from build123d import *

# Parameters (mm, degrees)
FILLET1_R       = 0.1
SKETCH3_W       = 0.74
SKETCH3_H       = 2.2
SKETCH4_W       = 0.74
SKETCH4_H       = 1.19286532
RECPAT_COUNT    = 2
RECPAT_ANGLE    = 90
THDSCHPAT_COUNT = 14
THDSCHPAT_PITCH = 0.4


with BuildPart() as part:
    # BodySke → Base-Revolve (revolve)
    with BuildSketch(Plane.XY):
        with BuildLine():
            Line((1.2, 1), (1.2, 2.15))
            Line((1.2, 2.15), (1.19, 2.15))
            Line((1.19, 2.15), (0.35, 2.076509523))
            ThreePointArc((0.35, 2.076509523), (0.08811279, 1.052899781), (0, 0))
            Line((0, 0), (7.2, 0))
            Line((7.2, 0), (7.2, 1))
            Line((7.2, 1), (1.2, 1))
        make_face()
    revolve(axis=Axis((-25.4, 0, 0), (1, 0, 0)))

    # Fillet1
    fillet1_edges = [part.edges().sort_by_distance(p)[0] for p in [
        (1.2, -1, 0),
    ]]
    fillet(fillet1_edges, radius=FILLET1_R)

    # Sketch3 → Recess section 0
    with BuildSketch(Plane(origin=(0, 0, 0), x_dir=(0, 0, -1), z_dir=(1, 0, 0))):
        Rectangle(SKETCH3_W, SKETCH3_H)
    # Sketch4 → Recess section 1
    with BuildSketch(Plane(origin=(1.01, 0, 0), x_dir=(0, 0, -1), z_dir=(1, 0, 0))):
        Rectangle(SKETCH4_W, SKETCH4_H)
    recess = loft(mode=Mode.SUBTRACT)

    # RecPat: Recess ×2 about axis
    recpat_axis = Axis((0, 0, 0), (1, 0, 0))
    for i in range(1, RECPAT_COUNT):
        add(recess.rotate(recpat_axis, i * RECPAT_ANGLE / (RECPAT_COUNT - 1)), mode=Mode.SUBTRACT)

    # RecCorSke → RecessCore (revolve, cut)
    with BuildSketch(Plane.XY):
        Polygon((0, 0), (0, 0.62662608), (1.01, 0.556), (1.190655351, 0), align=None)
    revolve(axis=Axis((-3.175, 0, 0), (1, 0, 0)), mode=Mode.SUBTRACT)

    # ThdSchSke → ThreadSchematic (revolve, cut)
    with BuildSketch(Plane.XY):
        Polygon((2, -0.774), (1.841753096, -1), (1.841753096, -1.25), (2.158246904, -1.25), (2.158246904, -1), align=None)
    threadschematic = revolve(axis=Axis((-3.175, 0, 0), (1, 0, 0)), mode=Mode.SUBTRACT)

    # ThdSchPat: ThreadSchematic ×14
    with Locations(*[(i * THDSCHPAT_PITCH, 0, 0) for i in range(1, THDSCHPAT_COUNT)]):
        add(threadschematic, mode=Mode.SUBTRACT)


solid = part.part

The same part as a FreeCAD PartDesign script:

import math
import FreeCAD as App
import Part
import Sketcher

V = App.Vector
Q = App.Units.Quantity


def edges_at(feature, points):
    """Names of the edges that pass closest to the given points."""
    edges = feature.Shape.Edges
    near = lambda p: min(range(len(edges)), key=lambda i: edges[i].distToShape(Part.Vertex(*p))[0])
    return sorted({f"Edge{near(p) + 1}" for p in points})


def add_polygon(sketch, points):
    """Adds a closed chain of lines whose ends are joined by coincident constraints."""
    first, n = sketch.GeometryCount, len(points)
    for a, b in zip(points, points[1:] + points[:1]):
        sketch.addGeometry(Part.LineSegment(App.Vector(*a, 0), App.Vector(*b, 0)), False)
    for i in range(n):
        sketch.addConstraint(Sketcher.Constraint("Coincident", first + i, 2, first + (i + 1) % n, 1))

doc = App.newDocument("Part")
body = doc.addObject("PartDesign::Body", "Body")

# Sketch on XY plane
sketch1 = body.newObject("Sketcher::SketchObject", "Sketch")
sketch1.AttachmentSupport = (doc.getObject("XY_Plane"), [""])
sketch1.MapMode = "FlatFace"
sketch1.addGeometry([
    Part.LineSegment(V(1.2, 1, 0), V(1.2, 2.15, 0)),  # 0
    Part.LineSegment(V(1.2, 2.15, 0), V(1.19, 2.15, 0)),  # 1
    Part.LineSegment(V(1.19, 2.15, 0), V(0.35, 2.077, 0)),  # 2
    Part.ArcOfCircle(Part.Circle(V(6.335, 0, 0), V(0, 0, 1), 6.335), math.radians(160.87), math.radians(180)),  # 3
    Part.LineSegment(V(0, 0, 0), V(7.2, 0, 0)),  # 4
    Part.LineSegment(V(7.2, 0, 0), V(7.2, 1, 0)),  # 5
    Part.LineSegment(V(7.2, 1, 0), V(1.2, 1, 0)),  # 6
], False)
sketch1.addConstraint([
    Sketcher.Constraint("Coincident", 0, 2, 1, 1),
    Sketcher.Constraint("Coincident", 1, 2, 2, 1),
    Sketcher.Constraint("Coincident", 2, 2, 3, 1),
    Sketcher.Constraint("Coincident", 3, 2, 4, 1),
    Sketcher.Constraint("Coincident", 4, 2, 5, 1),
    Sketcher.Constraint("Coincident", 5, 2, 6, 1),
    Sketcher.Constraint("Coincident", 6, 2, 0, 1),
    Sketcher.Constraint("Vertical", 0),
    Sketcher.Constraint("Horizontal", 1),
    Sketcher.Constraint("Horizontal", 4),
    Sketcher.Constraint("Vertical", 5),
    Sketcher.Constraint("Horizontal", 6),
    Sketcher.Constraint("Coincident", 3, 2, -1, 1),
    Sketcher.Constraint("PointOnObject", 3, 3, -1),
    Sketcher.Constraint("DistanceX", 6, 2, 6, 1, 6.0),
    Sketcher.Constraint("DistanceY", 5, 1, 5, 2, 1.0),
    Sketcher.Constraint("Angle", 2, Q("-175 deg")),
    Sketcher.Constraint("DistanceX", 4, 1, 4, 2, 7.2),
    Sketcher.Constraint("DistanceX", 1, 2, 1, 1, 0.01),
    Sketcher.Constraint("DistanceY", 0, 1, 0, 2, 1.15),
    Sketcher.Constraint("DistanceX", -1, 1, 2, 2, 0.35),
])
revolution = body.newObject("PartDesign::Revolution", "Revolution")
revolution.Profile = sketch1
revolution.ReferenceAxis = (sketch1, ["H_Axis"])
revolution.Angle = 360
doc.recompute()

fillet = body.newObject("PartDesign::Fillet", "Fillet")
fillet.Base = (revolution, edges_at(revolution, [(1.2, -1, 0)]))
fillet.Radius = 0.1

# Sketch on YZ plane
sketch2 = body.newObject("Sketcher::SketchObject", "Sketch001")
sketch2.AttachmentSupport = (doc.getObject("YZ_Plane"), [""])
sketch2.MapMode = "FlatFace"
add_polygon(sketch2, [(1.1, 0.4), (-1.1, 0.4), (-1.1, -0.4), (1.1, -0.4)])  # lines 0-3
sketch2.addConstraint([
    Sketcher.Constraint("Horizontal", 0),
    Sketcher.Constraint("Vertical", 1),
    Sketcher.Constraint("Horizontal", 2),
    Sketcher.Constraint("Vertical", 3),
    Sketcher.Constraint("Symmetric", 0, 2, 2, 2, -1, 1),
    Sketcher.Constraint("DistanceX", 0, 2, 0, 1, 2.2),
    Sketcher.Constraint("DistanceY", 1, 2, 1, 1, 0.74),
])

# Sketch on YZ plane
sketch3 = body.newObject("Sketcher::SketchObject", "Sketch002")
sketch3.AttachmentSupport = (doc.getObject("YZ_Plane"), [""])
sketch3.MapMode = "FlatFace"
sketch3.AttachmentOffset = App.Placement(V(0, 0, 1.01), App.Rotation())
add_polygon(sketch3, [(0.6, 0.4), (-0.6, 0.4), (-0.6, -0.4), (0.6, -0.4)])  # lines 0-3
sketch3.addConstraint([
    Sketcher.Constraint("Horizontal", 0),
    Sketcher.Constraint("Vertical", 1),
    Sketcher.Constraint("Horizontal", 2),
    Sketcher.Constraint("Vertical", 3),
    Sketcher.Constraint("Symmetric", 0, 2, 2, 2, -1, 1),
    Sketcher.Constraint("DistanceY", 1, 2, 1, 1, 0.74),
    Sketcher.Constraint("DistanceX", 0, 2, 0, 1, 1.192865),
])

subtractiveloft = body.newObject("PartDesign::SubtractiveLoft", "SubtractiveLoft")
subtractiveloft.Profile = sketch2
subtractiveloft.Sections = [sketch3]
doc.recompute()

polarpattern = body.newObject("PartDesign::PolarPattern", "PolarPattern")
polarpattern.Originals = [subtractiveloft]
polarpattern.Axis = (doc.getObject("X_Axis"), [""])
polarpattern.Angle = 90
polarpattern.Occurrences = 2
body.Tip = polarpattern

# Sketch on XY plane
sketch4 = body.newObject("Sketcher::SketchObject", "Sketch003")
sketch4.AttachmentSupport = (doc.getObject("XY_Plane"), [""])
sketch4.MapMode = "FlatFace"
add_polygon(sketch4, [(0, 0.6), (0, 0), (1.2, 0), (1, 0.6)])  # lines 0-3
sketch4.addConstraint([
    Sketcher.Constraint("Vertical", 0),
    Sketcher.Constraint("Horizontal", 1),
    Sketcher.Constraint("Coincident", 0, 2, -1, 1),
    Sketcher.Constraint("Angle", 2, Q("108 deg")),
    Sketcher.Constraint("Angle", 3, Q("176 deg")),
    Sketcher.Constraint("DistanceX", -1, 1, 2, 2, 1.01),
    Sketcher.Constraint("DistanceY", -1, 1, 2, 2, 0.556),
])
groove = body.newObject("PartDesign::Groove", "Groove")
groove.Profile = sketch4
groove.ReferenceAxis = (sketch4, ["H_Axis"])
groove.Angle = 360

# Sketch on XY plane
sketch5 = body.newObject("Sketcher::SketchObject", "Sketch004")
sketch5.AttachmentSupport = (doc.getObject("XY_Plane"), [""])
sketch5.MapMode = "FlatFace"
add_polygon(sketch5, [(2, -0.77), (1.84, -1), (1.84, -1.25), (2.16, -1.25), (2.16, -1)])  # lines 0-4
sketch5.addConstraint([
    Sketcher.Constraint("Vertical", 1),
    Sketcher.Constraint("Horizontal", 2),
    Sketcher.Constraint("Vertical", 3),
    Sketcher.Constraint("Horizontal", 0, 2, 3, 2),
    Sketcher.Constraint("Equal", 0, 4),
    Sketcher.Constraint("Angle", 0, Q("-125 deg")),
    Sketcher.Constraint("DistanceY", 0, 2, -1, 1, 1.0),
    Sketcher.Constraint("DistanceX", -1, 1, 4, 2, 2.0),
    Sketcher.Constraint("DistanceY", 1, 2, 1, 1, 0.25),
    Sketcher.Constraint("DistanceY", 4, 2, -1, 1, 0.774),
])
groove2 = body.newObject("PartDesign::Groove", "Groove001")
groove2.Profile = sketch5
groove2.ReferenceAxis = (sketch5, ["H_Axis"])
groove2.Angle = 360
doc.recompute()

linearpattern = body.newObject("PartDesign::LinearPattern", "LinearPattern")
linearpattern.Originals = [groove2]
linearpattern.Direction = (doc.getObject("X_Axis"), [""])
linearpattern.Mode = "offset"
linearpattern.Offset = 0.4
linearpattern.Occurrences = 14
body.Tip = linearpattern

doc.recompute()
